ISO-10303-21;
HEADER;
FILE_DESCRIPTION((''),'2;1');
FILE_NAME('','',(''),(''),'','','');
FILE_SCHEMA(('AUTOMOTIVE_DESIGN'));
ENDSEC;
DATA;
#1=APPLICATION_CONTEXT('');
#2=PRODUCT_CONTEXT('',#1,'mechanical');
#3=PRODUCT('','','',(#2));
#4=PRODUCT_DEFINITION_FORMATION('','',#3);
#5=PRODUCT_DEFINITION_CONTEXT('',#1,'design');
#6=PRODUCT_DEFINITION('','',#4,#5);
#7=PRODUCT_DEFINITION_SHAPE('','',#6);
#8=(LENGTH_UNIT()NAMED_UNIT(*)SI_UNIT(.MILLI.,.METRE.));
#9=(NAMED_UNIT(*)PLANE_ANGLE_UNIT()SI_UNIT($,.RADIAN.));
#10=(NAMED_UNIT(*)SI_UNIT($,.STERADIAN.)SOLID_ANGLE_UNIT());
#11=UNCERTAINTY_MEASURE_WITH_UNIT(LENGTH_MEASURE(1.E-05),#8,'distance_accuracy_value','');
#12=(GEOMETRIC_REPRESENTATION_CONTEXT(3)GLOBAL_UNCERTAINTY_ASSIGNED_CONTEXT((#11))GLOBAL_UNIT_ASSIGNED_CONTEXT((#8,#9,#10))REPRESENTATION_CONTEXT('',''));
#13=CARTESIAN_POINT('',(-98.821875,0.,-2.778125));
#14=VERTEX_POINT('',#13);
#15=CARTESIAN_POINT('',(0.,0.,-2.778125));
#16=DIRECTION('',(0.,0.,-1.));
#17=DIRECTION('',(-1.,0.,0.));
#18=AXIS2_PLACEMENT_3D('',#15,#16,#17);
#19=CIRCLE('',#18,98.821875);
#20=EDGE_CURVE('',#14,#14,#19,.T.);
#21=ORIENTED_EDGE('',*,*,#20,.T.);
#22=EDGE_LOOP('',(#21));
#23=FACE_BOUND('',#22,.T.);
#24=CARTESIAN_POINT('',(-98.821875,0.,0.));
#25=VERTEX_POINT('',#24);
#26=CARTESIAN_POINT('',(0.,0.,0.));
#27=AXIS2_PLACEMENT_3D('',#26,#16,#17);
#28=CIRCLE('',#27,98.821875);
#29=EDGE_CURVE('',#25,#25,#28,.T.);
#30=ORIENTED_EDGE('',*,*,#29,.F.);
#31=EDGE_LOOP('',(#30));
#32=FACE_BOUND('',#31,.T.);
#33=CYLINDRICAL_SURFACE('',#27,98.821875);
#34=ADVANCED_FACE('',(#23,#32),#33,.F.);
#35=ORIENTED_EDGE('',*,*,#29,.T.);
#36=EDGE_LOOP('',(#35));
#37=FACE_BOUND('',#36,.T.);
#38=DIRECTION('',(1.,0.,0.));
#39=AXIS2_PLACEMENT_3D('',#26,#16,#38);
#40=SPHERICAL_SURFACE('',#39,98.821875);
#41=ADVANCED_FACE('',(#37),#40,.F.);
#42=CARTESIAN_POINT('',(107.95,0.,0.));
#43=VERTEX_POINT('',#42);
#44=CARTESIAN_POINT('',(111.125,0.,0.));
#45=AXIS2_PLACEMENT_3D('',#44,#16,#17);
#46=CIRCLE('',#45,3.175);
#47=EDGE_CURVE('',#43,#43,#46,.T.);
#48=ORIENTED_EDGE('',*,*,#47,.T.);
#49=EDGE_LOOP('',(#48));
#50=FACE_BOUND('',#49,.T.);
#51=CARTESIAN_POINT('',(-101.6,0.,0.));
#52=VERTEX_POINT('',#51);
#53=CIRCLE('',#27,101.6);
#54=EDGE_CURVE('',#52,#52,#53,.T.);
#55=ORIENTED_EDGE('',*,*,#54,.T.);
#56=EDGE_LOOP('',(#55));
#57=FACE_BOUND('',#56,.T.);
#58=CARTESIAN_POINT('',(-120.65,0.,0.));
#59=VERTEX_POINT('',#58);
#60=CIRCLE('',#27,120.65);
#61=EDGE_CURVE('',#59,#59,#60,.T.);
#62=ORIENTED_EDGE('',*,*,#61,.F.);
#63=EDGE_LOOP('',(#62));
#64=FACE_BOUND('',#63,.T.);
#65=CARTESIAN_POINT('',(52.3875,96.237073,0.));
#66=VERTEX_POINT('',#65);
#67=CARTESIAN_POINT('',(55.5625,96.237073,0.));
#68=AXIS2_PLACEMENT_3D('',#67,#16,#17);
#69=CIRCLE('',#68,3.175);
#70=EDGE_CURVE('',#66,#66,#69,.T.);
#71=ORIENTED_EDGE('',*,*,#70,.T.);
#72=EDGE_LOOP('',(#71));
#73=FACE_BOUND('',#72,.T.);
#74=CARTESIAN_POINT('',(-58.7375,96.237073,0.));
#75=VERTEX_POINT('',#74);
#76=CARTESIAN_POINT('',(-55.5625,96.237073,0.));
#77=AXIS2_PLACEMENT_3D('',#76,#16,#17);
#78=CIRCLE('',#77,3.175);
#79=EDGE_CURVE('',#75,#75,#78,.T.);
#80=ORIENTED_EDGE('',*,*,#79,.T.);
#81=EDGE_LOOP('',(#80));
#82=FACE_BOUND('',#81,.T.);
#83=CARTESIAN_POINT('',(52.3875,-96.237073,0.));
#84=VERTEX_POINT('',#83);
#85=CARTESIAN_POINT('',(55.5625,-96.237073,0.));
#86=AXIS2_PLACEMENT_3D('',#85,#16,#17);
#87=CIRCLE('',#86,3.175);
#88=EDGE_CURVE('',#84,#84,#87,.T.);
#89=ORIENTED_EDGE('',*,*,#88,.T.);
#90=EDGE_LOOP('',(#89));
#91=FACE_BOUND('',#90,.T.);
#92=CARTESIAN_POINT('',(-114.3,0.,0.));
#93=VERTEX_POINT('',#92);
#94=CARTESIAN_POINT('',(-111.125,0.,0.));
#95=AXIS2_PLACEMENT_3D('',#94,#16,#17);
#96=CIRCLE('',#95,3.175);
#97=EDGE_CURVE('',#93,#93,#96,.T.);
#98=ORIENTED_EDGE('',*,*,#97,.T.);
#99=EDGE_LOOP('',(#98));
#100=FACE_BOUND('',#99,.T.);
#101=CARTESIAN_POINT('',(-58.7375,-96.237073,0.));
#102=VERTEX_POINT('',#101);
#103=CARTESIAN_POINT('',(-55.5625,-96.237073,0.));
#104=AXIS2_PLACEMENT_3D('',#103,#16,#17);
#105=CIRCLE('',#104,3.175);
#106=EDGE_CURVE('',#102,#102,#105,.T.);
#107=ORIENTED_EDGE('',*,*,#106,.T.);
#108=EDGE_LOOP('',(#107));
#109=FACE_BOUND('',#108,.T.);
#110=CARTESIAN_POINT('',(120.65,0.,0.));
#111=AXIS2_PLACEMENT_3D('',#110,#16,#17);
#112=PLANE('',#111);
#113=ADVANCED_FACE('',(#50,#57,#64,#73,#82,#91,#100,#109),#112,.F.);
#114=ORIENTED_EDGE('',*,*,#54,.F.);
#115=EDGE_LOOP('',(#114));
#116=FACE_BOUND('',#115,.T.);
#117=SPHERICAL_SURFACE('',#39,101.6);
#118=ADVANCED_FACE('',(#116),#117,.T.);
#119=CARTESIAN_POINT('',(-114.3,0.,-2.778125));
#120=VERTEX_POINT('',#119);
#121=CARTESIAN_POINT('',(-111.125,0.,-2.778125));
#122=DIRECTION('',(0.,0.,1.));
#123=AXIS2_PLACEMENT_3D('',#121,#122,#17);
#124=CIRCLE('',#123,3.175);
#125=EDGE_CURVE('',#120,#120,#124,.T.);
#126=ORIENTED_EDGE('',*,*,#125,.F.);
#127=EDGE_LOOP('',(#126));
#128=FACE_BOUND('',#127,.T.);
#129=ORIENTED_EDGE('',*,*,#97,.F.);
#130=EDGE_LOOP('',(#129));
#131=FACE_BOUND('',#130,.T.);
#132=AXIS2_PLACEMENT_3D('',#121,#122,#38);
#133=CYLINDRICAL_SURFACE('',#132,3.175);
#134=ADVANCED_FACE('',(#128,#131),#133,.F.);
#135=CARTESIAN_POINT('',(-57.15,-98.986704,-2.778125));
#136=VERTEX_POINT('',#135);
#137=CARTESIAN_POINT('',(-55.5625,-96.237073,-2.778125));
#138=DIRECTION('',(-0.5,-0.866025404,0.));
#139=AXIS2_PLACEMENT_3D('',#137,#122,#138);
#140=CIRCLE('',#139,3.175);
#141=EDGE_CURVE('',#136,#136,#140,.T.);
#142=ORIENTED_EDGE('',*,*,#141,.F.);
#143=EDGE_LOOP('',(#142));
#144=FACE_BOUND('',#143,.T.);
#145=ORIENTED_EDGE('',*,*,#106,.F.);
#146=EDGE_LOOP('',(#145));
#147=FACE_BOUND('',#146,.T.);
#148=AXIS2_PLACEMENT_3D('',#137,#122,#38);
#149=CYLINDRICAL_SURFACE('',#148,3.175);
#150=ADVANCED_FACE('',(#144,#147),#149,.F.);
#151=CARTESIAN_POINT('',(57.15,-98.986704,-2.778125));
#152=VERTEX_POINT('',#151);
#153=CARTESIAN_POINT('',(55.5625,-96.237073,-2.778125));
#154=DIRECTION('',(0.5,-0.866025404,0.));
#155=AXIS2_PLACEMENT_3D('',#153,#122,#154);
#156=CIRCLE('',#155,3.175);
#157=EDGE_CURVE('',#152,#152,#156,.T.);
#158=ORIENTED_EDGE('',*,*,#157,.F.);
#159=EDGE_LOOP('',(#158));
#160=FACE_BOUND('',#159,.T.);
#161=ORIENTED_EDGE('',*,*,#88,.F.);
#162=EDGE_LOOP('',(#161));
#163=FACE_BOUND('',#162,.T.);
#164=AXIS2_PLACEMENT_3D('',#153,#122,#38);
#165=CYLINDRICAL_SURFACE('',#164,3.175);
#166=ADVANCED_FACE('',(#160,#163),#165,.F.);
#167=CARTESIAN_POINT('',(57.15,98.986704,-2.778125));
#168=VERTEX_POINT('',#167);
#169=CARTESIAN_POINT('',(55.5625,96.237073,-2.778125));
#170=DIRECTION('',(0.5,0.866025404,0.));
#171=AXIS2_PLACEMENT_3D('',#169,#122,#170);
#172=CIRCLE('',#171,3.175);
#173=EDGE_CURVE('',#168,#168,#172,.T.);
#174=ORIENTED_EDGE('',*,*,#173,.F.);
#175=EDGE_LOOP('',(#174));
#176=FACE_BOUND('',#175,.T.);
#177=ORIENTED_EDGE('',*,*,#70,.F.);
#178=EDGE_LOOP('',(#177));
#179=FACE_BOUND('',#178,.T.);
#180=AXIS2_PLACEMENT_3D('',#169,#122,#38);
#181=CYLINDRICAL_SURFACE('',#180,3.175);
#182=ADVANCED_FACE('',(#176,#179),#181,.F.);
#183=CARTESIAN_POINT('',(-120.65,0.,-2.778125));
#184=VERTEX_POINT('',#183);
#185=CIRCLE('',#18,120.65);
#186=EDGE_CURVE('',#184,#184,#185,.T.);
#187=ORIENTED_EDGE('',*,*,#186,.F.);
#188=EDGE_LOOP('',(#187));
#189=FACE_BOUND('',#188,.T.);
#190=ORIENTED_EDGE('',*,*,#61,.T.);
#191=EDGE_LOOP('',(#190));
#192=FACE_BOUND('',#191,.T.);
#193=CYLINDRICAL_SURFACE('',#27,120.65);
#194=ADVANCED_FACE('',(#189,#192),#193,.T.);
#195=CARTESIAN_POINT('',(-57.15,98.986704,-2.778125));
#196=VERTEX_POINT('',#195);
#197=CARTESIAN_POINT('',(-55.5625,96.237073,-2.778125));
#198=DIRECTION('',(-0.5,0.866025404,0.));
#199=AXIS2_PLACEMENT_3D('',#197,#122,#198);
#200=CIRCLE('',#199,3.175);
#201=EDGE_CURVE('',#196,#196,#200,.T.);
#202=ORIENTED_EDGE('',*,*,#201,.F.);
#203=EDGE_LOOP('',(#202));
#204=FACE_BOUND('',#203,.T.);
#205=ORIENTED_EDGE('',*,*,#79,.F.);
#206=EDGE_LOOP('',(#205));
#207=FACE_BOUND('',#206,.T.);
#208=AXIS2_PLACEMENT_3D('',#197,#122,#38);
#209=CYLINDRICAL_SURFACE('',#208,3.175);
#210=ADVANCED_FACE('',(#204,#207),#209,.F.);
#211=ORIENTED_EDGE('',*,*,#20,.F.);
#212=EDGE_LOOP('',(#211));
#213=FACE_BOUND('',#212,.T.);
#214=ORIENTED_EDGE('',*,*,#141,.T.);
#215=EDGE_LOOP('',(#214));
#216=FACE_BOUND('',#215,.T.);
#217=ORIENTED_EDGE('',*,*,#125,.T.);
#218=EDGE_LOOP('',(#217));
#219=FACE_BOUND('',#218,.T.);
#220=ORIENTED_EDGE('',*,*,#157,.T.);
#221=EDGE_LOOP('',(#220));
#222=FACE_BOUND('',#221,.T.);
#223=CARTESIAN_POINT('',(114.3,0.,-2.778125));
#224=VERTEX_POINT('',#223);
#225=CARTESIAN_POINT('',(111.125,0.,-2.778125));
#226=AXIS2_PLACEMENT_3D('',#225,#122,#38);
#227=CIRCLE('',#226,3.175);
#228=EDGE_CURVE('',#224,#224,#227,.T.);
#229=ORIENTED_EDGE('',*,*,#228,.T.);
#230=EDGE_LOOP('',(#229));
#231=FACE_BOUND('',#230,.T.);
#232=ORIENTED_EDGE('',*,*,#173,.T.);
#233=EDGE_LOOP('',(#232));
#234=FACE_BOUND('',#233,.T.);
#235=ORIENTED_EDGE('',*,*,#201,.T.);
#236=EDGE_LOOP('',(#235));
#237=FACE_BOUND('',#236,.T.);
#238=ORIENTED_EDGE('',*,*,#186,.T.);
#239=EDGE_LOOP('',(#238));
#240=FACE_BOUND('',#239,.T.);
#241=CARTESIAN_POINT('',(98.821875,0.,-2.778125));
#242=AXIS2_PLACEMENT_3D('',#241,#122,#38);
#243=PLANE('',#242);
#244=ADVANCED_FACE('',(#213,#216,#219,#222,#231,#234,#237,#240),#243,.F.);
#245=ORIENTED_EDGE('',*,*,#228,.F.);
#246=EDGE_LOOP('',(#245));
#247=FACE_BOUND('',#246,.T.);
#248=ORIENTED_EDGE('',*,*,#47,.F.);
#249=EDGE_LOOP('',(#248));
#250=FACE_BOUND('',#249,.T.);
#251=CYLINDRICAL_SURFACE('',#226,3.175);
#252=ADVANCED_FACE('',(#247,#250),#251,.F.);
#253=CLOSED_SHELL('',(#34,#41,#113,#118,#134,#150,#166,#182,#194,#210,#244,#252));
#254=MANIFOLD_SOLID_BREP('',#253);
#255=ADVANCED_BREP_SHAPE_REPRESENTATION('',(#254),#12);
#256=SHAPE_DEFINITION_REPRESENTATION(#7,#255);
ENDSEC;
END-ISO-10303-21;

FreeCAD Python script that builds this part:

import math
import FreeCAD as App
import Part
import Sketcher
from FreeCAD import Vector
Q = App.Units.Quantity

doc = App.newDocument("Part")
body = doc.addObject("PartDesign::Body", "Body")

# Sketch on XZ plane
sketch1 = body.newObject("Sketcher::SketchObject", "Sketch")
sketch1.AttachmentSupport = (doc.getObject("XZ_Plane"), [""])
sketch1.MapMode = "FlatFace"
sketch1.addGeometry([
    Part.LineSegment(Vector(98.8, -2.8, 0), Vector(98.8, 0, 0)),  # 0
    Part.ArcOfCircle(Part.Circle(Vector(0, 0, 0), Vector(0, 0, 1), 98.8), math.radians(0), math.radians(90)),  # 1
    Part.LineSegment(Vector(0, 98.8, 0), Vector(0, 101.6, 0)),  # 2
    Part.ArcOfCircle(Part.Circle(Vector(0, 0, 0), Vector(0, 0, 1), 101.6), math.radians(0), math.radians(90)),  # 3
    Part.LineSegment(Vector(101.6, 0, 0), Vector(120.7, 0, 0)),  # 4
    Part.LineSegment(Vector(120.7, 0, 0), Vector(120.7, -2.8, 0)),  # 5
    Part.LineSegment(Vector(120.7, -2.8, 0), Vector(98.8, -2.8, 0)),  # 6
], False)
sketch1.addConstraint([
    Sketcher.Constraint("Tangent", 0, 2, 1, 1),
    Sketcher.Constraint("Coincident", 1, 2, 2, 1),
    Sketcher.Constraint("Coincident", 2, 2, 3, 2),
    Sketcher.Constraint("Coincident", 3, 1, 4, 1),
    Sketcher.Constraint("Coincident", 4, 2, 5, 1),
    Sketcher.Constraint("Coincident", 5, 2, 6, 1),
    Sketcher.Constraint("Coincident", 6, 2, 0, 1),
    Sketcher.Constraint("Vertical", 0),
    Sketcher.Constraint("Vertical", 2),
    Sketcher.Constraint("Horizontal", 4),
    Sketcher.Constraint("Vertical", 5),
    Sketcher.Constraint("Horizontal", 6),
    Sketcher.Constraint("Coincident", 1, 3, -1, 1),
    Sketcher.Constraint("Coincident", 3, 3, -1, 1),
    Sketcher.Constraint("PointOnObject", 1, 2, -2),
    Sketcher.Constraint("PointOnObject", 3, 1, -1),
    Sketcher.Constraint("Equal", 0, 2),
    Sketcher.Constraint("Radius", 3, Q("4 in")),
    Sketcher.Constraint("Radius", 1, Q("3.890625 in")),
    Sketcher.Constraint("DistanceX", 4, 1, 4, 2, Q("0.75 in")),
])
revolution = body.newObject("PartDesign::Revolution", "Revolution")
revolution.Profile = sketch1
revolution.ReferenceAxis = (sketch1, ["V_Axis"])
revolution.Angle = 360

# Sketch on XY plane
sketch2 = body.newObject("Sketcher::SketchObject", "Sketch001")
sketch2.AttachmentSupport = (doc.getObject("XY_Plane"), [""])
sketch2.MapMode = "FlatFace"
sketch2.addGeometry(Part.Circle(Vector(111.1, 0, 0), Vector(0, 0, 1), 3.2), False)
sketch2.addConstraint([
    Sketcher.Constraint("PointOnObject", 0, 3, -1),
    Sketcher.Constraint("Diameter", 0, Q("0.25 in")),
    Sketcher.Constraint("DistanceX", -1, 1, 0, 3, Q("4.375 in")),
])
pocket1 = body.newObject("PartDesign::Pocket", "Pocket")
pocket1.Profile = sketch2
pocket1.Length = 399.166993
pocket1.Midplane = True
doc.recompute()

polarpattern = body.newObject("PartDesign::PolarPattern", "PolarPattern")
polarpattern.Originals = [pocket1]
polarpattern.Axis = (doc.getObject("Z_Axis"), [""])
polarpattern.Angle = 360
polarpattern.Occurrences = 6
body.Tip = polarpattern

doc.recompute()
